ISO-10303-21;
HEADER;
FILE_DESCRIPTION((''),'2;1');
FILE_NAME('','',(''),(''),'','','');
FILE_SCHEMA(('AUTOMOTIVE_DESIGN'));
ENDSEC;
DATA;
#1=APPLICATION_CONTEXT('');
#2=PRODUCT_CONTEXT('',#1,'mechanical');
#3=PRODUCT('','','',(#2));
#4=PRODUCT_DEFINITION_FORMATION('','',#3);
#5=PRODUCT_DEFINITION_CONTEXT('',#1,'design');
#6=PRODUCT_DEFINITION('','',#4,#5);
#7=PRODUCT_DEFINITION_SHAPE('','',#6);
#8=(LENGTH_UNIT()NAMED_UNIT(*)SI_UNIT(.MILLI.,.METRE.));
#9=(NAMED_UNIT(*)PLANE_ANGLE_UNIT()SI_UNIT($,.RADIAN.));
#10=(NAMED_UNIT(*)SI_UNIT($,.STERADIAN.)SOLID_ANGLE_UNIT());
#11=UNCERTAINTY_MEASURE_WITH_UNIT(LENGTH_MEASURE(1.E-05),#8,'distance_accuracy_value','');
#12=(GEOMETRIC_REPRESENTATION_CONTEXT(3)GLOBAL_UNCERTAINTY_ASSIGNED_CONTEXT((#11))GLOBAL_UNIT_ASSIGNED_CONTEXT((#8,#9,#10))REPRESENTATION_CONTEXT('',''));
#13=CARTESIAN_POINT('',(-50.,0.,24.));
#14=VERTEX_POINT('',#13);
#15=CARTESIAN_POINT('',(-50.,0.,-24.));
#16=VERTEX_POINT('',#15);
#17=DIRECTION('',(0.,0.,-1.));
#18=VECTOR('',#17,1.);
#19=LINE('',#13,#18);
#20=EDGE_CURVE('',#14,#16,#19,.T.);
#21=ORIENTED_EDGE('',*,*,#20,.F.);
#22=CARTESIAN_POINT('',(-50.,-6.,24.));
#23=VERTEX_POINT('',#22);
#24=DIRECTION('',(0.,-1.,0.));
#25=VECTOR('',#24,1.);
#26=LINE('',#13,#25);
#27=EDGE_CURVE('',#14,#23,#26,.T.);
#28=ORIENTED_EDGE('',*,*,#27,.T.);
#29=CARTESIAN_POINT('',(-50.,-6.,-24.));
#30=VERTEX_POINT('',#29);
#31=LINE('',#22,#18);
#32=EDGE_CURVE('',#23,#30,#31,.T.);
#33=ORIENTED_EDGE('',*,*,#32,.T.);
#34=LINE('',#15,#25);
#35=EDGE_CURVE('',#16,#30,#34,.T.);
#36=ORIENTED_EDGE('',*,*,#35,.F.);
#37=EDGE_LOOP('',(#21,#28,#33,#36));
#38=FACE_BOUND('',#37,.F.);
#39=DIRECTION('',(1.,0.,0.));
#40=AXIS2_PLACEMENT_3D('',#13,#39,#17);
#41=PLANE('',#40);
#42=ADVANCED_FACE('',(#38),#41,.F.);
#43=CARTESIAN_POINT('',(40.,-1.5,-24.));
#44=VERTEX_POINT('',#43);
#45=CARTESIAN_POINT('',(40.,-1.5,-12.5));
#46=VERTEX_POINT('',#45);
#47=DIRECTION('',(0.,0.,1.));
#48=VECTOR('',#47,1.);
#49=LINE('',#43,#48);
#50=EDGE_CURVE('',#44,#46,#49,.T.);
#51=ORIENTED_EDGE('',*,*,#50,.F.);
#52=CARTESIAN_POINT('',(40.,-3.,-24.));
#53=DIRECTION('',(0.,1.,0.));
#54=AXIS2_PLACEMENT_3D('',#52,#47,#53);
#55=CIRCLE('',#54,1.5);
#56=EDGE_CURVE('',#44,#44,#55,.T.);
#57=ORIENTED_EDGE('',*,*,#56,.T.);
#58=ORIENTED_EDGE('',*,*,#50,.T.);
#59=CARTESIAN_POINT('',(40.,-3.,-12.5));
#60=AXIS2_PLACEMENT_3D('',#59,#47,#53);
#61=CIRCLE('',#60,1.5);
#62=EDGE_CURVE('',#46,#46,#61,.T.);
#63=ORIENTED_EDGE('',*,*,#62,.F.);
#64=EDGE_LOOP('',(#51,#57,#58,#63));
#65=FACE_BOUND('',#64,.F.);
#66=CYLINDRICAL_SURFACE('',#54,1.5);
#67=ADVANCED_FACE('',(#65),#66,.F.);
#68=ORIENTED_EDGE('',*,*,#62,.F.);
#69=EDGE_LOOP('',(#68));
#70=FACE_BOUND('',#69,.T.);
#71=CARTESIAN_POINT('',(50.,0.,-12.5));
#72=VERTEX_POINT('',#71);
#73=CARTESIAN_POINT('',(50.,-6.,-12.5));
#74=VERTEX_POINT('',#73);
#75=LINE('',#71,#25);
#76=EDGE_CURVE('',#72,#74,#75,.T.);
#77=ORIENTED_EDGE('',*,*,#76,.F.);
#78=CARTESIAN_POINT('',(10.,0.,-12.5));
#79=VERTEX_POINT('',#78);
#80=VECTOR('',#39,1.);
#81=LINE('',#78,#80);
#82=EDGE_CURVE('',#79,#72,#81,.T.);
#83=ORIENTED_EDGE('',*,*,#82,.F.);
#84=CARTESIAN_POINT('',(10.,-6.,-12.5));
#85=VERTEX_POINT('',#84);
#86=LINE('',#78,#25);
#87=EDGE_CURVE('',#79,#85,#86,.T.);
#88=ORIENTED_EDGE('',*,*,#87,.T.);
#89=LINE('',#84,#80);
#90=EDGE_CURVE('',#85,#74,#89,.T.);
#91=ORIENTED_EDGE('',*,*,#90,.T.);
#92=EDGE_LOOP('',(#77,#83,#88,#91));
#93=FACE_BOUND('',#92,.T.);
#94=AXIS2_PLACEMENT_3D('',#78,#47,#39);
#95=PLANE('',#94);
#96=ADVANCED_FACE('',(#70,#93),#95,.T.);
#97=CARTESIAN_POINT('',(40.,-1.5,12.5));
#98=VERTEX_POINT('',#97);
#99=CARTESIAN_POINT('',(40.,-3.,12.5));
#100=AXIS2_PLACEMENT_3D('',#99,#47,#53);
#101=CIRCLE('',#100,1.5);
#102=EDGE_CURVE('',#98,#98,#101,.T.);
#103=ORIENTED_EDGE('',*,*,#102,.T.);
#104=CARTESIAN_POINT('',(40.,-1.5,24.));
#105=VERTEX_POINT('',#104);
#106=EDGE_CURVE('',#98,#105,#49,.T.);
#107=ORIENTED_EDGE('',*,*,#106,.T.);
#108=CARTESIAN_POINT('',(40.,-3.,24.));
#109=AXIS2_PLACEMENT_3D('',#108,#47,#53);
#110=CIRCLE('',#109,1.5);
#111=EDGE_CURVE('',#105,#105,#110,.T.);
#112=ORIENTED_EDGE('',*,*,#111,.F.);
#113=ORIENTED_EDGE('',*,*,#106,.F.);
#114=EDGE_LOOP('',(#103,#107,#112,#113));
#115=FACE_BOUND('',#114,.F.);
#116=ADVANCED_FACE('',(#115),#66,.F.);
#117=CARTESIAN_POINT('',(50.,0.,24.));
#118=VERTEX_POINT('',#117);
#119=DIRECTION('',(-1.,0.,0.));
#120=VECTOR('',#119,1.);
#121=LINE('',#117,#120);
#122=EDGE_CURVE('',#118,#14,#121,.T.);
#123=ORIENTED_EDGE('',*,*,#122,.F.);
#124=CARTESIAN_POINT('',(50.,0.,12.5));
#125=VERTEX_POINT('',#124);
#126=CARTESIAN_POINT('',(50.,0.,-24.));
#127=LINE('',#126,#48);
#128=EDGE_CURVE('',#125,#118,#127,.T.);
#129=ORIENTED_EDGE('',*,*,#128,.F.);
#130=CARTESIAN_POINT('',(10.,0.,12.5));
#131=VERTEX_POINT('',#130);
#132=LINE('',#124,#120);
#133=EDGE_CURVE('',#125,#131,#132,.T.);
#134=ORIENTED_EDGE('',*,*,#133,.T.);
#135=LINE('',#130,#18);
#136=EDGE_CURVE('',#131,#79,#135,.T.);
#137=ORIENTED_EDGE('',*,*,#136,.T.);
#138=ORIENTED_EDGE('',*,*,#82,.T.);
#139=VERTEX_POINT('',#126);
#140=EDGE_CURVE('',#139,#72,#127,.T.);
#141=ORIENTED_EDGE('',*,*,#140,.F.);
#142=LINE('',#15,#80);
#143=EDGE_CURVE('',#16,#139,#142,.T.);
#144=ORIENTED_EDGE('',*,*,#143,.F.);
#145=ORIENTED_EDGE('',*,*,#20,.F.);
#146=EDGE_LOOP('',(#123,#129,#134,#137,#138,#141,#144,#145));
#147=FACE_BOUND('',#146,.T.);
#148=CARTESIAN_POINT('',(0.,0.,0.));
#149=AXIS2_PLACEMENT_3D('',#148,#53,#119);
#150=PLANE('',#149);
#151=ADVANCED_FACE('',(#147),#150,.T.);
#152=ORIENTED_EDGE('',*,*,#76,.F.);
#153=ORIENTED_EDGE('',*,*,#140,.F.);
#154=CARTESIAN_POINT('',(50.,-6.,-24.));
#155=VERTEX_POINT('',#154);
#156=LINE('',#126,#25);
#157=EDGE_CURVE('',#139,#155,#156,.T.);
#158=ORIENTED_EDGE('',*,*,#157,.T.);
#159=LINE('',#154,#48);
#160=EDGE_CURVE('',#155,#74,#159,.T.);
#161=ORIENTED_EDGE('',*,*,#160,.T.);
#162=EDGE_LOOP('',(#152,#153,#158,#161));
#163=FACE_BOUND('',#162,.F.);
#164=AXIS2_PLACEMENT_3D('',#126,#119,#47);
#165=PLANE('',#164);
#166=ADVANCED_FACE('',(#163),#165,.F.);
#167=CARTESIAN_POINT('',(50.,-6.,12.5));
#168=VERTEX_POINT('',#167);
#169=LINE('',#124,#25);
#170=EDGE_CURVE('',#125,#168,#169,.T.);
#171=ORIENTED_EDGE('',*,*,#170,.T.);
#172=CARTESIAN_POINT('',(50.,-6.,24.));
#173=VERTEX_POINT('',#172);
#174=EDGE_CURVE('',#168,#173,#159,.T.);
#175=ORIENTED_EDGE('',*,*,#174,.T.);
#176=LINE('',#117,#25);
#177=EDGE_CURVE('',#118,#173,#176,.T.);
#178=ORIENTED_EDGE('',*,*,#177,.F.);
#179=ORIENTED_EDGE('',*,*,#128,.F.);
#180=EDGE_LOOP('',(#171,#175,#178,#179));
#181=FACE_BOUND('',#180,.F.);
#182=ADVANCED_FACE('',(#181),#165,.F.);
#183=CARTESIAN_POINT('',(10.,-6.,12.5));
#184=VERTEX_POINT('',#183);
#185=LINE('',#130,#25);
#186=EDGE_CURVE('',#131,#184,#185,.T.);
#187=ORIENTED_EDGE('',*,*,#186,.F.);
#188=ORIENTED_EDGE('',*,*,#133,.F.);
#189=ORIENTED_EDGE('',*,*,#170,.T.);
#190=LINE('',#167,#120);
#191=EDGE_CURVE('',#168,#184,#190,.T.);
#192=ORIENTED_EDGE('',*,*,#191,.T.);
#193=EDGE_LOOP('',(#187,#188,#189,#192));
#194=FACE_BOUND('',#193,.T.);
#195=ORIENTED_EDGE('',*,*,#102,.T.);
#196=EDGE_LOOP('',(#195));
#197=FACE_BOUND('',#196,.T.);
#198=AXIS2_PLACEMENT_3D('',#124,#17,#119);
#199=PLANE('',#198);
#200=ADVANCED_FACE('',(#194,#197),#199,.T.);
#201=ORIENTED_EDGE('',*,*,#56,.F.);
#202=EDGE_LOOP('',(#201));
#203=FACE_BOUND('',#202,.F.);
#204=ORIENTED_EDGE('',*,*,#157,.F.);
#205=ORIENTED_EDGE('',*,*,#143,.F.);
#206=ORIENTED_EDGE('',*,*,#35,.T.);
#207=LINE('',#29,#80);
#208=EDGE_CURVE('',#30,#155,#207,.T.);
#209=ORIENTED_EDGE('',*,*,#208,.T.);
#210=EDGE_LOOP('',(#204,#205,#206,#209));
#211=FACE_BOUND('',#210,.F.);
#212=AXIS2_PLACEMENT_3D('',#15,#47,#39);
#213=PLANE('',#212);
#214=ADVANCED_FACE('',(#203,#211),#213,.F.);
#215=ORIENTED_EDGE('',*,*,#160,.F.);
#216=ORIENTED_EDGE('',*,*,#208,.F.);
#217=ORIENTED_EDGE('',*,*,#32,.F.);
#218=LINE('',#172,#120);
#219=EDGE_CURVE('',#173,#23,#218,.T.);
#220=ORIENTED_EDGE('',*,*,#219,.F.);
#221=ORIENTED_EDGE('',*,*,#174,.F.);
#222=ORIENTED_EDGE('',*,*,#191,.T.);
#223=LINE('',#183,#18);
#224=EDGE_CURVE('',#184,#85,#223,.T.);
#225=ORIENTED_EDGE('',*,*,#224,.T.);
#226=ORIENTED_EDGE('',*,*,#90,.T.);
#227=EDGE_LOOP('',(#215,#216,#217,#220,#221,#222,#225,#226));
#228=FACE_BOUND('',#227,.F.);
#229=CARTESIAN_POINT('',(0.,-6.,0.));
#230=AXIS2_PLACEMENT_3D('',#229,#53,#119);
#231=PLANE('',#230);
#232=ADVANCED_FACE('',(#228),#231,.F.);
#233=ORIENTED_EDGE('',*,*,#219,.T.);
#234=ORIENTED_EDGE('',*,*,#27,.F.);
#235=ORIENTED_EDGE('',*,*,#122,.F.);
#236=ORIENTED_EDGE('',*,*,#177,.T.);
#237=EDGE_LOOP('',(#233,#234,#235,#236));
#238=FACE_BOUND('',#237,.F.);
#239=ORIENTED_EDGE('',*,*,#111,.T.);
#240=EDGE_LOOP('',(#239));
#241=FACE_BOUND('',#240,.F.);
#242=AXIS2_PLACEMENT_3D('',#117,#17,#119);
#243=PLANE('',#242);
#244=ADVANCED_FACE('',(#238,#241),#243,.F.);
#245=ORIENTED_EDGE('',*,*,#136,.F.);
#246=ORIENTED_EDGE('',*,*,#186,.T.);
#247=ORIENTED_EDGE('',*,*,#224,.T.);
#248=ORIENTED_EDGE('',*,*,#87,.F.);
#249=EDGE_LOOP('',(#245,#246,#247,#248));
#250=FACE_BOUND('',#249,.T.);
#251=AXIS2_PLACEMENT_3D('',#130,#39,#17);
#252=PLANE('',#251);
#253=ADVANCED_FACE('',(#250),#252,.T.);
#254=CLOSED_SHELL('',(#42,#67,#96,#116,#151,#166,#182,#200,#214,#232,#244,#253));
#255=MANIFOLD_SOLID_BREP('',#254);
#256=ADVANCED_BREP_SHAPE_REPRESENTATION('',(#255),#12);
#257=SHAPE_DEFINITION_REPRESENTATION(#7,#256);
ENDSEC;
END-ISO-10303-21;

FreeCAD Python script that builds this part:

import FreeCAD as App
import Part
import Sketcher
Q = App.Units.Quantity


def add_polygon(sketch, points):
    """Adds a closed chain of lines whose ends are joined by coincident constraints."""
    first, n = sketch.GeometryCount, len(points)
    for a, b in zip(points, points[1:] + points[:1]):
        sketch.addGeometry(Part.LineSegment(App.Vector(*a, 0), App.Vector(*b, 0)), False)
    for i in range(n):
        sketch.addConstraint(Sketcher.Constraint("Coincident", first + i, 2, first + (i + 1) % n, 1))

doc = App.newDocument("Part")
params = doc.addObject("Spreadsheet::Sheet", "Params")
for row, (alias, value) in enumerate([
    ("sketch1_width", "100 mm"),
    ("sketch1_height", "48 mm"),
    ("pad1_length", "6 mm"),
    ("sketch2_width", "40 mm"),
    ("sketch2_height", "25 mm"),
    ("pocket1_length", "6 mm"),
    ("sketch3_diameter", "3 mm"),
    ("hole_diameter", "3 mm"),
], start=1):
    params.set(f"A{row}", alias)
    params.set(f"B{row}", "=" + value)
    params.setAlias(f"B{row}", alias)

body = doc.addObject("PartDesign::Body", "Body")

sketch1 = body.newObject("Sketcher::SketchObject", "Sketch")
sketch1.AttachmentSupport = (doc.getObject("XZ_Plane"), [""])
sketch1.MapMode = "FlatFace"
add_polygon(sketch1, [(-50, 24), (50, 24), (50, -24), (-50, -24)])
sketch1.addConstraint(Sketcher.Constraint("Horizontal", 0))
sketch1.addConstraint(Sketcher.Constraint("Vertical", 1))
sketch1.addConstraint(Sketcher.Constraint("Horizontal", 2))
sketch1.addConstraint(Sketcher.Constraint("Vertical", 3))
sketch1.addConstraint(Sketcher.Constraint("Symmetric", 0, 2, 2, 2, -1, 1))
sketch1.addConstraint(Sketcher.Constraint("DistanceX", 0, 1, 0, 2, Q("100 mm")))
sketch1.addConstraint(Sketcher.Constraint("DistanceY", 1, 2, 1, 1, Q("48 mm")))
sketch1.setExpression("Constraints[9]", "Params.sketch1_width")
sketch1.setExpression("Constraints[10]", "Params.sketch1_height")
pad1 = body.newObject("PartDesign::Pad", "Pad")
pad1.Profile = sketch1
pad1.setExpression("Length", "Params.pad1_length")

sketch2 = body.newObject("Sketcher::SketchObject", "Sketch001")
sketch2.AttachmentSupport = (doc.getObject("XZ_Plane"), [""])
sketch2.MapMode = "FlatFace"
add_polygon(sketch2, [(50, 12.5), (50, -12.5), (10, -12.5), (10, 12.5)])
sketch2.addConstraint(Sketcher.Constraint("Vertical", 0))
sketch2.addConstraint(Sketcher.Constraint("Horizontal", 1))
sketch2.addConstraint(Sketcher.Constraint("Vertical", 2))
sketch2.addConstraint(Sketcher.Constraint("Horizontal", 3))
sketch2.addConstraint(Sketcher.Constraint("DistanceX", 1, 2, 1, 1, Q("40 mm")))
sketch2.addConstraint(Sketcher.Constraint("DistanceY", 0, 2, 0, 1, Q("25 mm")))
sketch2.addConstraint(Sketcher.Constraint("DistanceX", -1, 1, 0, 2, Q("50 mm")))
sketch2.addConstraint(Sketcher.Constraint("DistanceY", 0, 2, -1, 1, Q("12.5 mm")))
sketch2.setExpression("Constraints[8]", "Params.sketch2_width")
sketch2.setExpression("Constraints[9]", "Params.sketch2_height")
pocket1 = body.newObject("PartDesign::Pocket", "Pocket")
pocket1.Profile = sketch2
pocket1.setExpression("Length", "Params.pocket1_length")
pocket1.Reversed = True

sketch3 = body.newObject("Sketcher::SketchObject", "Sketch002")
sketch3.AttachmentSupport = (doc.getObject("XY_Plane"), [""])
sketch3.MapMode = "FlatFace"
sketch3.AttachmentOffset = App.Placement(App.Vector(0, 0, -24), App.Rotation())
sketch3.addGeometry(Part.Circle(App.Vector(40, -3, 0), App.Vector(0, 0, 1), 1.5), False)
sketch3.addConstraint(Sketcher.Constraint("Diameter", 0, Q("3 mm")))
sketch3.addConstraint(Sketcher.Constraint("DistanceX", -1, 1, 0, 3, Q("40 mm")))
sketch3.addConstraint(Sketcher.Constraint("DistanceY", 0, 3, -1, 1, Q("3 mm")))
sketch3.setExpression("Constraints[0]", "Params.sketch3_diameter")
doc.recompute()
hole = body.newObject("PartDesign::Hole", "Hole")
hole.Profile = sketch3
hole.ThreadType = "None"
hole.setExpression("Diameter", "Params.hole_diameter")
hole.DepthType = "ThroughAll"
hole.Reversed = True

doc.recompute()
